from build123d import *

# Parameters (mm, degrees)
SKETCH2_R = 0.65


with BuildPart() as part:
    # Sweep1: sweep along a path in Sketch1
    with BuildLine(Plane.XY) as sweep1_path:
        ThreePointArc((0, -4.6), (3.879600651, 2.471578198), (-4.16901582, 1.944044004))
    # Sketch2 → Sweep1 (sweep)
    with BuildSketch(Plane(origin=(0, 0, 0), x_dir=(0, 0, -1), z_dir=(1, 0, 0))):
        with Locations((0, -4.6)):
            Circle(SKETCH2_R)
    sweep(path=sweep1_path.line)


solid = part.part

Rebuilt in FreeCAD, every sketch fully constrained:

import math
import FreeCAD as App
import Part
import Sketcher
Q = App.Units.Quantity

doc = App.newDocument("Part")
body = doc.addObject("PartDesign::Body", "Body")

# Sketch on YZ plane
sketch1 = doc.addObject("Sketcher::SketchObject", "Sketch")
body.addObject(sketch1)
sketch1.AttachmentSupport = (doc.YZ_Plane, [""])
sketch1.MapMode = "FlatFace"
sketch1.addGeometry(Part.Circle(App.Vector(-4.6, 0, 0), App.Vector(0, 0, 1), 0.7), False)
sketch1.addConstraint(Sketcher.Constraint("PointOnObject", 0, 3, -1))
sketch1.addConstraint(Sketcher.Constraint("Diameter", 0, Q("1.3 mm")))
sketch1.addConstraint(Sketcher.Constraint("DistanceX", 0, 3, -1, 1, Q("4.6 mm")))

# Sketch on XY plane
sketch2 = doc.addObject("Sketcher::SketchObject", "Sketch001")
body.addObject(sketch2)
sketch2.AttachmentSupport = (doc.XY_Plane, [""])
sketch2.MapMode = "FlatFace"
sketch2.addGeometry(Part.ArcOfCircle(Part.Circle(App.Vector(0, 0, 0), App.Vector(0, 0, 1), 4.6), math.radians(-90), math.radians(155)), False)
sketch2.addConstraint(Sketcher.Constraint("Coincident", 0, 3, -1, 1))
sketch2.addConstraint(Sketcher.Constraint("PointOnObject", 0, 1, -2))
sketch2.addConstraint(Sketcher.Constraint("Radius", 0, Q("4.6 mm")))
sketch2.addConstraint(Sketcher.Constraint("DistanceX", 0, 2, -1, 1, Q("4.169016 mm")))
doc.recompute()

additivepipe = doc.addObject("PartDesign::AdditivePipe", "AdditivePipe")
body.addObject(additivepipe)
additivepipe.Profile = sketch1
additivepipe.Spine = (sketch2, ["Edge1"])

doc.recompute()
